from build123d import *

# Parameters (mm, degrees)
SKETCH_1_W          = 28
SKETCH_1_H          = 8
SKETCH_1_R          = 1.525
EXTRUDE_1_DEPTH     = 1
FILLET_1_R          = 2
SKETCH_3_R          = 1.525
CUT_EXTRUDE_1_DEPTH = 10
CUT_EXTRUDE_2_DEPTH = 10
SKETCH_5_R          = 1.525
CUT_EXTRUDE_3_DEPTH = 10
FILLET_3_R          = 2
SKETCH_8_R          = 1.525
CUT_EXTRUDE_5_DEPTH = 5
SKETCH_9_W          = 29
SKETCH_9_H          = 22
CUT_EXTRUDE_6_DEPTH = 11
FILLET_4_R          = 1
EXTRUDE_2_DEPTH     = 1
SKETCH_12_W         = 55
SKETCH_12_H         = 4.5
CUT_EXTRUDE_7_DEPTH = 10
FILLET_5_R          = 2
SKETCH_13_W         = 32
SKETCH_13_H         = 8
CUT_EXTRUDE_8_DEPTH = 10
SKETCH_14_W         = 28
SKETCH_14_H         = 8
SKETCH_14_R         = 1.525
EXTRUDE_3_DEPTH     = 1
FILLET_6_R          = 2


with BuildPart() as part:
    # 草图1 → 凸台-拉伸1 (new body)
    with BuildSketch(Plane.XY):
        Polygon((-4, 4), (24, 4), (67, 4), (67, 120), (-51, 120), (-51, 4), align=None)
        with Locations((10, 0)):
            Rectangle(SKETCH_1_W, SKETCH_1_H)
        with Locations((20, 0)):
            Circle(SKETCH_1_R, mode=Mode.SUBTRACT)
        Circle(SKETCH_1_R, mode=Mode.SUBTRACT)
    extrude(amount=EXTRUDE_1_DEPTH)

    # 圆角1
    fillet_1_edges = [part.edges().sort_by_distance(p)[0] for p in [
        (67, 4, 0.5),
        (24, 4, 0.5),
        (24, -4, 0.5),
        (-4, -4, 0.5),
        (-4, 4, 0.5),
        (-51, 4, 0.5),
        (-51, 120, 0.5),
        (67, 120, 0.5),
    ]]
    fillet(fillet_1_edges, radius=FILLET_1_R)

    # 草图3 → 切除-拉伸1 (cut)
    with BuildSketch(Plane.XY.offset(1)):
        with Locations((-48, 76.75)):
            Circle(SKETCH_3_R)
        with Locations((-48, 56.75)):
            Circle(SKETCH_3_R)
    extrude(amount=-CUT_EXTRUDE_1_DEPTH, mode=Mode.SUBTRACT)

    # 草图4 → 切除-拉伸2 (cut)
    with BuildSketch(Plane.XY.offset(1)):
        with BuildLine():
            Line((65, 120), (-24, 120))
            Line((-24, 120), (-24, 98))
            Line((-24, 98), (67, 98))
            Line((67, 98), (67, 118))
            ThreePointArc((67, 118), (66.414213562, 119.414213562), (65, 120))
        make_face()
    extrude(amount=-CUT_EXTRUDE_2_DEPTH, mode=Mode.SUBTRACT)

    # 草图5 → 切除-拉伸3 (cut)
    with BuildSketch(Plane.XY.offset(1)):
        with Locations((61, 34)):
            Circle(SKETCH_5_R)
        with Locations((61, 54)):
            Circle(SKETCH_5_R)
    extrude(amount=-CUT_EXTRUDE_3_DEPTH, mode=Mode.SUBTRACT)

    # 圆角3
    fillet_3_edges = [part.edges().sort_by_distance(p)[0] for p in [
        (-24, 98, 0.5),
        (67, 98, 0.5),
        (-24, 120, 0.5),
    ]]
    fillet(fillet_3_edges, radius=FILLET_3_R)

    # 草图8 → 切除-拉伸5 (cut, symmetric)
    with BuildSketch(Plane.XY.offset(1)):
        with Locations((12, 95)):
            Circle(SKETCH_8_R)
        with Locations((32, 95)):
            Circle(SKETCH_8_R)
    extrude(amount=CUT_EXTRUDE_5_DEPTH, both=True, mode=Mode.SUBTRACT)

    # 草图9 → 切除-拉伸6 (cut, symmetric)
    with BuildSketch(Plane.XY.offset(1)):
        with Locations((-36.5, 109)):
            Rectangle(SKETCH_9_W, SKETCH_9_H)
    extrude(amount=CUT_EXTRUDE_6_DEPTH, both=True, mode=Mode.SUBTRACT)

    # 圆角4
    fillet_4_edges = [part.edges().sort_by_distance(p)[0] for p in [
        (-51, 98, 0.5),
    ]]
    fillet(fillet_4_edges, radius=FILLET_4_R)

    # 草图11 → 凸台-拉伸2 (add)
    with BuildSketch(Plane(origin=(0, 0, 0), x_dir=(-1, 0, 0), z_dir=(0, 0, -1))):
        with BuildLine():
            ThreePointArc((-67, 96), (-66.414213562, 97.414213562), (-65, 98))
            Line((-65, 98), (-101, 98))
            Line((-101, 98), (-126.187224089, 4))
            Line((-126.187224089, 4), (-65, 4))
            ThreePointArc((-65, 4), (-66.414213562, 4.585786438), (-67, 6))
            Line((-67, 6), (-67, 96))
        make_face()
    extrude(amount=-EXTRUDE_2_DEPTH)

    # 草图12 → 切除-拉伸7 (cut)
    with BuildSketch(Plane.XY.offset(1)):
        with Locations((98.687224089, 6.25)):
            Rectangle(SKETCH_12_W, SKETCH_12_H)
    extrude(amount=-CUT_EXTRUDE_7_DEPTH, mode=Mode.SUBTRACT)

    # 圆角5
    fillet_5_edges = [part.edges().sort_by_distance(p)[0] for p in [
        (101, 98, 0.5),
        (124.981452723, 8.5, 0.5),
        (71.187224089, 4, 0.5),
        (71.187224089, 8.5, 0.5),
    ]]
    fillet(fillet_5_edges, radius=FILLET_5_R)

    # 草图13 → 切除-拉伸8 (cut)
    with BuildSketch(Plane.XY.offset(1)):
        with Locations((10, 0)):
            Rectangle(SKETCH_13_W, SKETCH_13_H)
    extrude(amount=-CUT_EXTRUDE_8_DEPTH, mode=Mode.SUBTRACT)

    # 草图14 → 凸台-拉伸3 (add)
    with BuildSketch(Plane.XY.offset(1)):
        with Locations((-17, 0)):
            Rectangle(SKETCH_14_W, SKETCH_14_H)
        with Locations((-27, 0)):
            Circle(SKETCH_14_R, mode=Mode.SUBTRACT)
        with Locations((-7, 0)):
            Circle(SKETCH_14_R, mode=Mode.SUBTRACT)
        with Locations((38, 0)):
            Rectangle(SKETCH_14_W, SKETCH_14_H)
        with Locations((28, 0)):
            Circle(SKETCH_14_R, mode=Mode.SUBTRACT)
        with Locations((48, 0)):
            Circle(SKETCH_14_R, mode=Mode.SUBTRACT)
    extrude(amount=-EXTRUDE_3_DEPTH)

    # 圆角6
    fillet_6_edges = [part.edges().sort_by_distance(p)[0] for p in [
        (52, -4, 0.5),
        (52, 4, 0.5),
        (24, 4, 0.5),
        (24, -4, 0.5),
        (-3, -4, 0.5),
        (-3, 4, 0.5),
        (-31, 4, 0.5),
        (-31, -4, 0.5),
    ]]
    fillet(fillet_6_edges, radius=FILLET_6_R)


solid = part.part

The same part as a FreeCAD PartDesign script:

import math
import FreeCAD as App
import Part
import Sketcher

V = App.Vector
Q = App.Units.Quantity


def edges_at(feature, points):
    """Names of the edges that pass closest to the given points."""
    edges = feature.Shape.Edges
    near = lambda p: min(range(len(edges)), key=lambda i: edges[i].distToShape(Part.Vertex(*p))[0])
    return sorted({f"Edge{near(p) + 1}" for p in points})

doc = App.newDocument("Part")
params = doc.addObject("Spreadsheet::Sheet", "Params")
for row, (alias, value) in enumerate([
    ("sketch1_diameter", "3.05 mm"),
    ("sketch1_width", "118 mm"),
    ("sketch1_width2", "47 mm"),
    ("sketch1_width3", "28 mm"),
    ("sketch1_height", "116 mm"),
    ("pad1_length", "1 mm"),
    ("fillet_radius", "2 mm"),
    ("sketch2_diameter", "3.05 mm"),
    ("pocket1_length", "10 mm"),
    ("sketch3_radius", "2 mm"),
    ("sketch3_width", "89 mm"),
    ("sketch3_height", "22 mm"),
    ("pocket2_length", "10 mm"),
    ("sketch4_diameter", "3.05 mm"),
    ("pocket3_length", "10 mm"),
    ("fillet2_radius", "2 mm"),
    ("sketch5_diameter", "3.05 mm"),
    ("pocket4_length", "10 mm"),
    ("sketch6_width", "29 mm"),
    ("sketch6_height", "22 mm"),
    ("pocket5_length", "22 mm"),
    ("fillet3_radius", "1 mm"),
    ("sketch7_radius", "2 mm"),
    ("sketch7_width", "36 mm"),
    ("sketch7_height", "90 mm"),
    ("pad2_length", "1 mm"),
    ("sketch8_width", "55 mm"),
    ("sketch8_height", "4.5 mm"),
    ("pocket6_length", "10 mm"),
    ("fillet4_radius", "2 mm"),
    ("sketch9_width", "32 mm"),
    ("sketch9_height", "8 mm"),
    ("pocket7_length", "10 mm"),
    ("sketch10_diameter", "3.05 mm"),
    ("sketch10_width", "28 mm"),
    ("sketch10_height", "8 mm"),
    ("pad3_length", "1 mm"),
    ("fillet5_radius", "2 mm"),
], start=1):
    params.set(f"A{row}", alias)
    params.set(f"B{row}", "=" + value)
    params.setAlias(f"B{row}", alias)

body = doc.addObject("PartDesign::Body", "Body")

sketch1 = body.newObject("Sketcher::SketchObject", "Sketch")
sketch1.AttachmentSupport = (doc.getObject("XY_Plane"), [""])
sketch1.MapMode = "FlatFace"
sketch1.addGeometry([
    Part.LineSegment(V(67, 4, 0), V(67, 120, 0)),
    Part.LineSegment(V(67, 120, 0), V(-51, 120, 0)),
    Part.LineSegment(V(-51, 120, 0), V(-51, 4, 0)),
    Part.LineSegment(V(-51, 4, 0), V(-4, 4, 0)),
    Part.LineSegment(V(-4, 4, 0), V(-4, -4, 0)),
    Part.LineSegment(V(-4, -4, 0), V(24, -4, 0)),
    Part.LineSegment(V(24, -4, 0), V(24, 4, 0)),
    Part.LineSegment(V(24, 4, 0), V(67, 4, 0)),
    Part.Circle(V(0, 0, 0), V(0, 0, 1), 1.5),
    Part.Circle(V(20, 0, 0), V(0, 0, 1), 1.5),
], False)
sketch1.addConstraint([
    Sketcher.Constraint("Coincident", 0, 2, 1, 1),
    Sketcher.Constraint("Coincident", 1, 2, 2, 1),
    Sketcher.Constraint("Coincident", 2, 2, 3, 1),
    Sketcher.Constraint("Coincident", 3, 2, 4, 1),
    Sketcher.Constraint("Coincident", 4, 2, 5, 1),
    Sketcher.Constraint("Coincident", 5, 2, 6, 1),
    Sketcher.Constraint("Coincident", 6, 2, 7, 1),
    Sketcher.Constraint("Coincident", 7, 2, 0, 1),
    Sketcher.Constraint("Vertical", 0),
    Sketcher.Constraint("Horizontal", 1),
    Sketcher.Constraint("Vertical", 2),
    Sketcher.Constraint("Horizontal", 3),
    Sketcher.Constraint("Vertical", 4),
    Sketcher.Constraint("Horizontal", 5),
    Sketcher.Constraint("Vertical", 6),
    Sketcher.Constraint("Horizontal", 7),
    Sketcher.Constraint("Coincident", 8, 3, -1, 1),
    Sketcher.Constraint("Equal", 8, 9),
    Sketcher.Constraint("PointOnObject", 9, 3, -1),
    Sketcher.Constraint("Horizontal", 3, 2, 6, 2),
    Sketcher.Constraint("Diameter", 8, Q("3.05 mm")),
    Sketcher.Constraint("DistanceX", 1, 2, 1, 1, Q("118 mm")),
    Sketcher.Constraint("DistanceX", 3, 1, 3, 2, Q("47 mm")),
    Sketcher.Constraint("DistanceX", 5, 1, 5, 2, Q("28 mm")),
    Sketcher.Constraint("DistanceY", 0, 1, 0, 2, Q("116 mm")),
    Sketcher.Constraint("DistanceY", 4, 2, 4, 1, Q("8 mm")),
    Sketcher.Constraint("DistanceX", -1, 1, 9, 3, Q("20 mm")),
    Sketcher.Constraint("DistanceX", -1, 1, 0, 2, Q("67 mm")),
    Sketcher.Constraint("DistanceY", -1, 1, 0, 2, Q("120 mm")),
])
sketch1.setExpression("Constraints[20]", "Params.sketch1_diameter")
sketch1.setExpression("Constraints[21]", "Params.sketch1_width")
sketch1.setExpression("Constraints[22]", "Params.sketch1_width2")
sketch1.setExpression("Constraints[23]", "Params.sketch1_width3")
sketch1.setExpression("Constraints[24]", "Params.sketch1_height")
pad1 = body.newObject("PartDesign::Pad", "Pad")
pad1.Profile = sketch1
pad1.setExpression("Length", "Params.pad1_length")
doc.recompute()

fillet = body.newObject("PartDesign::Fillet", "Fillet")
fillet.Base = (pad1, edges_at(pad1, [
    (67, 4, 0.5),
    (24, 4, 0.5),
    (24, -4, 0.5),
    (-4, -4, 0.5),
    (-4, 4, 0.5),
    (-51, 4, 0.5),
    (-51, 120, 0.5),
    (67, 120, 0.5),
]))
fillet.setExpression("Radius", "Params.fillet_radius")

sketch2 = body.newObject("Sketcher::SketchObject", "Sketch001")
sketch2.AttachmentSupport = (doc.getObject("XY_Plane"), [""])
sketch2.MapMode = "FlatFace"
sketch2.AttachmentOffset = App.Placement(V(0, 0, 1), App.Rotation())
sketch2.addGeometry([
    Part.Circle(V(-48, 76.8, 0), V(0, 0, 1), 1.5),
    Part.Circle(V(-48, 56.8, 0), V(0, 0, 1), 1.5),
], False)
sketch2.addConstraint([
    Sketcher.Constraint("Equal", 0, 1),
    Sketcher.Constraint("Vertical", 0, 3, 1, 3),
    Sketcher.Constraint("Diameter", 0, Q("3.05 mm")),
    Sketcher.Constraint("DistanceX", 0, 3, -1, 1, Q("48 mm")),
    Sketcher.Constraint("DistanceY", 1, 3, 0, 3, Q("20 mm")),
    Sketcher.Constraint("DistanceY", -1, 1, 0, 3, Q("76.75 mm")),
])
sketch2.setExpression("Constraints[2]", "Params.sketch2_diameter")
pocket1 = body.newObject("PartDesign::Pocket", "Pocket")
pocket1.Profile = sketch2
pocket1.setExpression("Length", "Params.pocket1_length")

sketch3 = body.newObject("Sketcher::SketchObject", "Sketch002")
sketch3.AttachmentSupport = (doc.getObject("XY_Plane"), [""])
sketch3.MapMode = "FlatFace"
sketch3.AttachmentOffset = App.Placement(V(0, 0, 1), App.Rotation())
sketch3.addGeometry([
    Part.LineSegment(V(65, 120, 0), V(-24, 120, 0)),
    Part.LineSegment(V(-24, 120, 0), V(-24, 98, 0)),
    Part.LineSegment(V(-24, 98, 0), V(67, 98, 0)),
    Part.LineSegment(V(67, 98, 0), V(67, 118, 0)),
    Part.ArcOfCircle(Part.Circle(V(65, 118, 0), V(0, 0, 1), 2), math.radians(0), math.radians(90)),
], False)
sketch3.addConstraint([
    Sketcher.Constraint("Coincident", 0, 2, 1, 1),
    Sketcher.Constraint("Coincident", 1, 2, 2, 1),
    Sketcher.Constraint("Coincident", 2, 2, 3, 1),
    Sketcher.Constraint("Tangent", 3, 2, 4, 1),
    Sketcher.Constraint("Tangent", 4, 2, 0, 1),
    Sketcher.Constraint("Horizontal", 0),
    Sketcher.Constraint("Vertical", 1),
    Sketcher.Constraint("Horizontal", 2),
    Sketcher.Constraint("Vertical", 3),
    Sketcher.Constraint("Radius", 4, Q("2 mm")),
    Sketcher.Constraint("DistanceX", 0, 2, 0, 1, Q("89 mm")),
    Sketcher.Constraint("DistanceY", 1, 2, 1, 1, Q("22 mm")),
    Sketcher.Constraint("DistanceX", -1, 1, 4, 3, Q("65 mm")),
    Sketcher.Constraint("DistanceY", -1, 1, 4, 3, Q("118 mm")),
])
sketch3.setExpression("Constraints[9]", "Params.sketch3_radius")
sketch3.setExpression("Constraints[10]", "Params.sketch3_width")
sketch3.setExpression("Constraints[11]", "Params.sketch3_height")
pocket2 = body.newObject("PartDesign::Pocket", "Pocket001")
pocket2.Profile = sketch3
pocket2.setExpression("Length", "Params.pocket2_length")

sketch4 = body.newObject("Sketcher::SketchObject", "Sketch003")
sketch4.AttachmentSupport = (doc.getObject("XY_Plane"), [""])
sketch4.MapMode = "FlatFace"
sketch4.AttachmentOffset = App.Placement(V(0, 0, 1), App.Rotation())
sketch4.addGeometry([
    Part.Circle(V(61, 34, 0), V(0, 0, 1), 1.5),
    Part.Circle(V(61, 54, 0), V(0, 0, 1), 1.5),
], False)
sketch4.addConstraint([
    Sketcher.Constraint("Equal", 0, 1),
    Sketcher.Constraint("Vertical", 0, 3, 1, 3),
    Sketcher.Constraint("Diameter", 0, Q("3.05 mm")),
    Sketcher.Constraint("DistanceX", -1, 1, 0, 3, Q("61 mm")),
    Sketcher.Constraint("DistanceY", -1, 1, 0, 3, Q("34 mm")),
    Sketcher.Constraint("DistanceY", -1, 1, 1, 3, Q("54 mm")),
])
sketch4.setExpression("Constraints[2]", "Params.sketch4_diameter")
pocket3 = body.newObject("PartDesign::Pocket", "Pocket002")
pocket3.Profile = sketch4
pocket3.setExpression("Length", "Params.pocket3_length")
doc.recompute()

fillet2 = body.newObject("PartDesign::Fillet", "Fillet001")
fillet2.Base = (pocket3, edges_at(pocket3, [(-24, 98, 0.5), (67, 98, 0.5), (-24, 120, 0.5)]))
fillet2.setExpression("Radius", "Params.fillet2_radius")

sketch5 = body.newObject("Sketcher::SketchObject", "Sketch004")
sketch5.AttachmentSupport = (doc.getObject("XY_Plane"), [""])
sketch5.MapMode = "FlatFace"
sketch5.AttachmentOffset = App.Placement(V(0, 0, 1), App.Rotation())
sketch5.addGeometry([
    Part.Circle(V(12, 95, 0), V(0, 0, 1), 1.5),
    Part.Circle(V(32, 95, 0), V(0, 0, 1), 1.5),
], False)
sketch5.addConstraint([
    Sketcher.Constraint("Equal", 0, 1),
    Sketcher.Constraint("Horizontal", 0, 3, 1, 3),
    Sketcher.Constraint("Diameter", 0, Q("3.05 mm")),
    Sketcher.Constraint("DistanceX", -1, 1, 0, 3, Q("12 mm")),
    Sketcher.Constraint("DistanceY", -1, 1, 0, 3, Q("95 mm")),
    Sketcher.Constraint("DistanceX", -1, 1, 1, 3, Q("32 mm")),
])
sketch5.setExpression("Constraints[2]", "Params.sketch5_diameter")
pocket4 = body.newObject("PartDesign::Pocket", "Pocket003")
pocket4.Profile = sketch5
pocket4.setExpression("Length", "Params.pocket4_length")
pocket4.Midplane = True

sketch6 = body.newObject("Sketcher::SketchObject", "Sketch005")
sketch6.AttachmentSupport = (doc.getObject("XY_Plane"), [""])
sketch6.MapMode = "FlatFace"
sketch6.AttachmentOffset = App.Placement(V(0, 0, 1), App.Rotation())
sketch6.addGeometry([
    Part.LineSegment(V(-51, 120, 0), V(-51, 98, 0)),
    Part.LineSegment(V(-51, 98, 0), V(-22, 98, 0)),
    Part.LineSegment(V(-22, 98, 0), V(-22, 120, 0)),
    Part.LineSegment(V(-22, 120, 0), V(-51, 120, 0)),
], False)
sketch6.addConstraint([
    Sketcher.Constraint("Coincident", 0, 2, 1, 1),
    Sketcher.Constraint("Coincident", 1, 2, 2, 1),
    Sketcher.Constraint("Coincident", 2, 2, 3, 1),
    Sketcher.Constraint("Coincident", 3, 2, 0, 1),
    Sketcher.Constraint("Vertical", 0),
    Sketcher.Constraint("Horizontal", 1),
    Sketcher.Constraint("Vertical", 2),
    Sketcher.Constraint("Horizontal", 3),
    Sketcher.Constraint("DistanceX", 1, 1, 1, 2, Q("29 mm")),
    Sketcher.Constraint("DistanceY", 0, 2, 0, 1, Q("22 mm")),
    Sketcher.Constraint("DistanceX", 0, 2, -1, 1, Q("51 mm")),
    Sketcher.Constraint("DistanceY", -1, 1, 0, 2, Q("98 mm")),
])
sketch6.setExpression("Constraints[8]", "Params.sketch6_width")
sketch6.setExpression("Constraints[9]", "Params.sketch6_height")
pocket5 = body.newObject("PartDesign::Pocket", "Pocket004")
pocket5.Profile = sketch6
pocket5.setExpression("Length", "Params.pocket5_length")
pocket5.Midplane = True
doc.recompute()

fillet3 = body.newObject("PartDesign::Fillet", "Fillet002")
fillet3.Base = (pocket5, edges_at(pocket5, [(-51, 98, 0.5)]))
fillet3.setExpression("Radius", "Params.fillet3_radius")

sketch7 = body.newObject("Sketcher::SketchObject", "Sketch006")
sketch7.AttachmentSupport = (doc.getObject("XY_Plane"), [""])
sketch7.MapMode = "FlatFace"
sketch7.addGeometry([
    Part.ArcOfCircle(Part.Circle(V(65, 96, 0), V(0, 0, 1), 2), math.radians(0), math.radians(90)),
    Part.LineSegment(V(65, 98, 0), V(101, 98, 0)),
    Part.LineSegment(V(101, 98, 0), V(126.2, 4, 0)),
    Part.LineSegment(V(126.2, 4, 0), V(65, 4, 0)),
    Part.ArcOfCircle(Part.Circle(V(65, 6, 0), V(0, 0, 1), 2), math.radians(-90), math.radians(0)),
    Part.LineSegment(V(67, 6, 0), V(67, 96, 0)),
], False)
sketch7.addConstraint([
    Sketcher.Constraint("Tangent", 0, 2, 1, 1),
    Sketcher.Constraint("Coincident", 1, 2, 2, 1),
    Sketcher.Constraint("Coincident", 2, 2, 3, 1),
    Sketcher.Constraint("Tangent", 3, 2, 4, 1),
    Sketcher.Constraint("Tangent", 4, 2, 5, 1),
    Sketcher.Constraint("Tangent", 5, 2, 0, 1),
    Sketcher.Constraint("Horizontal", 1),
    Sketcher.Constraint("Horizontal", 3),
    Sketcher.Constraint("Vertical", 5),
    Sketcher.Constraint("Equal", 0, 4),
    Sketcher.Constraint("Radius", 0, Q("2 mm")),
    Sketcher.Constraint("DistanceX", 1, 1, 1, 2, Q("36 mm")),
    Sketcher.Constraint("DistanceY", 5, 1, 5, 2, Q("90 mm")),
    Sketcher.Constraint("Angle", 2, Q("-75 deg")),
    Sketcher.Constraint("DistanceX", -1, 1, 0, 3, Q("65 mm")),
    Sketcher.Constraint("DistanceY", -1, 1, 0, 3, Q("96 mm")),
])
sketch7.setExpression("Constraints[10]", "Params.sketch7_radius")
sketch7.setExpression("Constraints[11]", "Params.sketch7_width")
sketch7.setExpression("Constraints[12]", "Params.sketch7_height")
pad2 = body.newObject("PartDesign::Pad", "Pad001")
pad2.Profile = sketch7
pad2.setExpression("Length", "Params.pad2_length")

sketch8 = body.newObject("Sketcher::SketchObject", "Sketch007")
sketch8.AttachmentSupport = (doc.getObject("XY_Plane"), [""])
sketch8.MapMode = "FlatFace"
sketch8.AttachmentOffset = App.Placement(V(0, 0, 1), App.Rotation())
sketch8.addGeometry([
    Part.LineSegment(V(71.2, 8.5, 0), V(71.2, 4, 0)),
    Part.LineSegment(V(71.2, 4, 0), V(126.2, 4, 0)),
    Part.LineSegment(V(126.2, 4, 0), V(126.2, 8.5, 0)),
    Part.LineSegment(V(126.2, 8.5, 0), V(71.2, 8.5, 0)),
], False)
sketch8.addConstraint([
    Sketcher.Constraint("Coincident", 0, 2, 1, 1),
    Sketcher.Constraint("Coincident", 1, 2, 2, 1),
    Sketcher.Constraint("Coincident", 2, 2, 3, 1),
    Sketcher.Constraint("Coincident", 3, 2, 0, 1),
    Sketcher.Constraint("Vertical", 0),
    Sketcher.Constraint("Horizontal", 1),
    Sketcher.Constraint("Vertical", 2),
    Sketcher.Constraint("Horizontal", 3),
    Sketcher.Constraint("DistanceX", 1, 1, 1, 2, Q("55 mm")),
    Sketcher.Constraint("DistanceY", 0, 2, 0, 1, Q("4.5 mm")),
    Sketcher.Constraint("DistanceY", -1, 1, 0, 2, Q("4 mm")),
    Sketcher.Constraint("DistanceX", -1, 1, 0, 2, Q("71.187224 mm")),
])
sketch8.setExpression("Constraints[8]", "Params.sketch8_width")
sketch8.setExpression("Constraints[9]", "Params.sketch8_height")
pocket6 = body.newObject("PartDesign::Pocket", "Pocket005")
pocket6.Profile = sketch8
pocket6.setExpression("Length", "Params.pocket6_length")
doc.recompute()

fillet4 = body.newObject("PartDesign::Fillet", "Fillet003")
fillet4.Base = (pocket6, edges_at(pocket6, [
    (101, 98, 0.5),
    (124.981, 8.5, 0.5),
    (71.187, 4, 0.5),
    (71.187, 8.5, 0.5),
]))
fillet4.setExpression("Radius", "Params.fillet4_radius")

sketch9 = body.newObject("Sketcher::SketchObject", "Sketch008")
sketch9.AttachmentSupport = (doc.getObject("XY_Plane"), [""])
sketch9.MapMode = "FlatFace"
sketch9.AttachmentOffset = App.Placement(V(0, 0, 1), App.Rotation())
sketch9.addGeometry([
    Part.LineSegment(V(-6, 4, 0), V(-6, -4, 0)),
    Part.LineSegment(V(-6, -4, 0), V(26, -4, 0)),
    Part.LineSegment(V(26, -4, 0), V(26, 4, 0)),
    Part.LineSegment(V(26, 4, 0), V(-6, 4, 0)),
], False)
sketch9.addConstraint([
    Sketcher.Constraint("Coincident", 0, 2, 1, 1),
    Sketcher.Constraint("Coincident", 1, 2, 2, 1),
    Sketcher.Constraint("Coincident", 2, 2, 3, 1),
    Sketcher.Constraint("Coincident", 3, 2, 0, 1),
    Sketcher.Constraint("Vertical", 0),
    Sketcher.Constraint("Horizontal", 1),
    Sketcher.Constraint("Vertical", 2),
    Sketcher.Constraint("Horizontal", 3),
    Sketcher.Constraint("DistanceX", 1, 1, 1, 2, Q("32 mm")),
    Sketcher.Constraint("DistanceY", 0, 2, 0, 1, Q("8 mm")),
    Sketcher.Constraint("DistanceX", 0, 2, -1, 1, Q("6 mm")),
    Sketcher.Constraint("DistanceY", 0, 2, -1, 1, Q("4 mm")),
])
sketch9.setExpression("Constraints[8]", "Params.sketch9_width")
sketch9.setExpression("Constraints[9]", "Params.sketch9_height")
pocket7 = body.newObject("PartDesign::Pocket", "Pocket006")
pocket7.Profile = sketch9
pocket7.setExpression("Length", "Params.pocket7_length")

sketch10 = body.newObject("Sketcher::SketchObject", "Sketch009")
sketch10.AttachmentSupport = (doc.getObject("XY_Plane"), [""])
sketch10.MapMode = "FlatFace"
sketch10.AttachmentOffset = App.Placement(V(0, 0, 1), App.Rotation())
sketch10.addGeometry([
    Part.LineSegment(V(-31, 4, 0), V(-31, -4, 0)),
    Part.LineSegment(V(-31, -4, 0), V(-3, -4, 0)),
    Part.LineSegment(V(-3, -4, 0), V(-3, 4, 0)),
    Part.LineSegment(V(-3, 4, 0), V(-31, 4, 0)),
    Part.Circle(V(-27, 0, 0), V(0, 0, 1), 1.5),
    Part.Circle(V(-7, 0, 0), V(0, 0, 1), 1.5),
    Part.LineSegment(V(24, 4, 0), V(24, -4, 0)),
    Part.LineSegment(V(24, -4, 0), V(52, -4, 0)),
    Part.LineSegment(V(52, -4, 0), V(52, 4, 0)),
    Part.LineSegment(V(52, 4, 0), V(24, 4, 0)),
    Part.Circle(V(28, 0, 0), V(0, 0, 1), 1.5),
    Part.Circle(V(48, 0, 0), V(0, 0, 1), 1.5),
], False)
sketch10.addConstraint([
    Sketcher.Constraint("Coincident", 0, 2, 1, 1),
    Sketcher.Constraint("Coincident", 1, 2, 2, 1),
    Sketcher.Constraint("Coincident", 2, 2, 3, 1),
    Sketcher.Constraint("Coincident", 3, 2, 0, 1),
    Sketcher.Constraint("Coincident", 6, 2, 7, 1),
    Sketcher.Constraint("Coincident", 7, 2, 8, 1),
    Sketcher.Constraint("Coincident", 8, 2, 9, 1),
    Sketcher.Constraint("Coincident", 9, 2, 6, 1),
    Sketcher.Constraint("Vertical", 0),
    Sketcher.Constraint("Horizontal", 1),
    Sketcher.Constraint("Vertical", 2),
    Sketcher.Constraint("Horizontal", 3),
    Sketcher.Constraint("Vertical", 6),
    Sketcher.Constraint("Horizontal", 7),
    Sketcher.Constraint("Vertical", 8),
    Sketcher.Constraint("Horizontal", 9),
    Sketcher.Constraint("Equal", 4, 5),
    Sketcher.Constraint("Equal", 5, 10),
    Sketcher.Constraint("Equal", 10, 11),
    Sketcher.Constraint("PointOnObject", 4, 3, -1),
    Sketcher.Constraint("PointOnObject", 5, 3, -1),
    Sketcher.Constraint("PointOnObject", 10, 3, -1),
    Sketcher.Constraint("PointOnObject", 11, 3, -1),
    Sketcher.Constraint("Horizontal", 1, 2, 6, 2),
    Sketcher.Constraint("Horizontal", 3, 2, 8, 2),
    Sketcher.Constraint("Equal", 3, 7),
    Sketcher.Constraint("Diameter", 4, Q("3.05 mm")),
    Sketcher.Constraint("DistanceX", 1, 1, 1, 2, Q("28 mm")),
    Sketcher.Constraint("DistanceY", 0, 2, 0, 1, Q("8 mm")),
    Sketcher.Constraint("DistanceX", 4, 3, -1, 1, Q("27 mm")),
    Sketcher.Constraint("DistanceX", 5, 3, -1, 1, Q("7 mm")),
    Sketcher.Constraint("DistanceX", -1, 1, 10, 3, Q("28 mm")),
    Sketcher.Constraint("DistanceX", -1, 1, 11, 3, Q("48 mm")),
    Sketcher.Constraint("DistanceX", 0, 2, -1, 1, Q("31 mm")),
    Sketcher.Constraint("DistanceY", 0, 2, -1, 1, Q("4 mm")),
    Sketcher.Constraint("DistanceX", -1, 1, 6, 2, Q("24 mm")),
])
sketch10.setExpression("Constraints[26]", "Params.sketch10_diameter")
sketch10.setExpression("Constraints[27]", "Params.sketch10_width")
sketch10.setExpression("Constraints[28]", "Params.sketch10_height")
pad3 = body.newObject("PartDesign::Pad", "Pad002")
pad3.Profile = sketch10
pad3.setExpression("Length", "Params.pad3_length")
pad3.Reversed = True
doc.recompute()

fillet5 = body.newObject("PartDesign::Fillet", "Fillet004")
fillet5.Base = (pad3, edges_at(pad3, [
    (52, -4, 0.5),
    (52, 4, 0.5),
    (24, 4, 0.5),
    (24, -4, 0.5),
    (-3, -4, 0.5),
    (-3, 4, 0.5),
    (-31, 4, 0.5),
    (-31, -4, 0.5),
]))
fillet5.setExpression("Radius", "Params.fillet5_radius")

doc.recompute()
